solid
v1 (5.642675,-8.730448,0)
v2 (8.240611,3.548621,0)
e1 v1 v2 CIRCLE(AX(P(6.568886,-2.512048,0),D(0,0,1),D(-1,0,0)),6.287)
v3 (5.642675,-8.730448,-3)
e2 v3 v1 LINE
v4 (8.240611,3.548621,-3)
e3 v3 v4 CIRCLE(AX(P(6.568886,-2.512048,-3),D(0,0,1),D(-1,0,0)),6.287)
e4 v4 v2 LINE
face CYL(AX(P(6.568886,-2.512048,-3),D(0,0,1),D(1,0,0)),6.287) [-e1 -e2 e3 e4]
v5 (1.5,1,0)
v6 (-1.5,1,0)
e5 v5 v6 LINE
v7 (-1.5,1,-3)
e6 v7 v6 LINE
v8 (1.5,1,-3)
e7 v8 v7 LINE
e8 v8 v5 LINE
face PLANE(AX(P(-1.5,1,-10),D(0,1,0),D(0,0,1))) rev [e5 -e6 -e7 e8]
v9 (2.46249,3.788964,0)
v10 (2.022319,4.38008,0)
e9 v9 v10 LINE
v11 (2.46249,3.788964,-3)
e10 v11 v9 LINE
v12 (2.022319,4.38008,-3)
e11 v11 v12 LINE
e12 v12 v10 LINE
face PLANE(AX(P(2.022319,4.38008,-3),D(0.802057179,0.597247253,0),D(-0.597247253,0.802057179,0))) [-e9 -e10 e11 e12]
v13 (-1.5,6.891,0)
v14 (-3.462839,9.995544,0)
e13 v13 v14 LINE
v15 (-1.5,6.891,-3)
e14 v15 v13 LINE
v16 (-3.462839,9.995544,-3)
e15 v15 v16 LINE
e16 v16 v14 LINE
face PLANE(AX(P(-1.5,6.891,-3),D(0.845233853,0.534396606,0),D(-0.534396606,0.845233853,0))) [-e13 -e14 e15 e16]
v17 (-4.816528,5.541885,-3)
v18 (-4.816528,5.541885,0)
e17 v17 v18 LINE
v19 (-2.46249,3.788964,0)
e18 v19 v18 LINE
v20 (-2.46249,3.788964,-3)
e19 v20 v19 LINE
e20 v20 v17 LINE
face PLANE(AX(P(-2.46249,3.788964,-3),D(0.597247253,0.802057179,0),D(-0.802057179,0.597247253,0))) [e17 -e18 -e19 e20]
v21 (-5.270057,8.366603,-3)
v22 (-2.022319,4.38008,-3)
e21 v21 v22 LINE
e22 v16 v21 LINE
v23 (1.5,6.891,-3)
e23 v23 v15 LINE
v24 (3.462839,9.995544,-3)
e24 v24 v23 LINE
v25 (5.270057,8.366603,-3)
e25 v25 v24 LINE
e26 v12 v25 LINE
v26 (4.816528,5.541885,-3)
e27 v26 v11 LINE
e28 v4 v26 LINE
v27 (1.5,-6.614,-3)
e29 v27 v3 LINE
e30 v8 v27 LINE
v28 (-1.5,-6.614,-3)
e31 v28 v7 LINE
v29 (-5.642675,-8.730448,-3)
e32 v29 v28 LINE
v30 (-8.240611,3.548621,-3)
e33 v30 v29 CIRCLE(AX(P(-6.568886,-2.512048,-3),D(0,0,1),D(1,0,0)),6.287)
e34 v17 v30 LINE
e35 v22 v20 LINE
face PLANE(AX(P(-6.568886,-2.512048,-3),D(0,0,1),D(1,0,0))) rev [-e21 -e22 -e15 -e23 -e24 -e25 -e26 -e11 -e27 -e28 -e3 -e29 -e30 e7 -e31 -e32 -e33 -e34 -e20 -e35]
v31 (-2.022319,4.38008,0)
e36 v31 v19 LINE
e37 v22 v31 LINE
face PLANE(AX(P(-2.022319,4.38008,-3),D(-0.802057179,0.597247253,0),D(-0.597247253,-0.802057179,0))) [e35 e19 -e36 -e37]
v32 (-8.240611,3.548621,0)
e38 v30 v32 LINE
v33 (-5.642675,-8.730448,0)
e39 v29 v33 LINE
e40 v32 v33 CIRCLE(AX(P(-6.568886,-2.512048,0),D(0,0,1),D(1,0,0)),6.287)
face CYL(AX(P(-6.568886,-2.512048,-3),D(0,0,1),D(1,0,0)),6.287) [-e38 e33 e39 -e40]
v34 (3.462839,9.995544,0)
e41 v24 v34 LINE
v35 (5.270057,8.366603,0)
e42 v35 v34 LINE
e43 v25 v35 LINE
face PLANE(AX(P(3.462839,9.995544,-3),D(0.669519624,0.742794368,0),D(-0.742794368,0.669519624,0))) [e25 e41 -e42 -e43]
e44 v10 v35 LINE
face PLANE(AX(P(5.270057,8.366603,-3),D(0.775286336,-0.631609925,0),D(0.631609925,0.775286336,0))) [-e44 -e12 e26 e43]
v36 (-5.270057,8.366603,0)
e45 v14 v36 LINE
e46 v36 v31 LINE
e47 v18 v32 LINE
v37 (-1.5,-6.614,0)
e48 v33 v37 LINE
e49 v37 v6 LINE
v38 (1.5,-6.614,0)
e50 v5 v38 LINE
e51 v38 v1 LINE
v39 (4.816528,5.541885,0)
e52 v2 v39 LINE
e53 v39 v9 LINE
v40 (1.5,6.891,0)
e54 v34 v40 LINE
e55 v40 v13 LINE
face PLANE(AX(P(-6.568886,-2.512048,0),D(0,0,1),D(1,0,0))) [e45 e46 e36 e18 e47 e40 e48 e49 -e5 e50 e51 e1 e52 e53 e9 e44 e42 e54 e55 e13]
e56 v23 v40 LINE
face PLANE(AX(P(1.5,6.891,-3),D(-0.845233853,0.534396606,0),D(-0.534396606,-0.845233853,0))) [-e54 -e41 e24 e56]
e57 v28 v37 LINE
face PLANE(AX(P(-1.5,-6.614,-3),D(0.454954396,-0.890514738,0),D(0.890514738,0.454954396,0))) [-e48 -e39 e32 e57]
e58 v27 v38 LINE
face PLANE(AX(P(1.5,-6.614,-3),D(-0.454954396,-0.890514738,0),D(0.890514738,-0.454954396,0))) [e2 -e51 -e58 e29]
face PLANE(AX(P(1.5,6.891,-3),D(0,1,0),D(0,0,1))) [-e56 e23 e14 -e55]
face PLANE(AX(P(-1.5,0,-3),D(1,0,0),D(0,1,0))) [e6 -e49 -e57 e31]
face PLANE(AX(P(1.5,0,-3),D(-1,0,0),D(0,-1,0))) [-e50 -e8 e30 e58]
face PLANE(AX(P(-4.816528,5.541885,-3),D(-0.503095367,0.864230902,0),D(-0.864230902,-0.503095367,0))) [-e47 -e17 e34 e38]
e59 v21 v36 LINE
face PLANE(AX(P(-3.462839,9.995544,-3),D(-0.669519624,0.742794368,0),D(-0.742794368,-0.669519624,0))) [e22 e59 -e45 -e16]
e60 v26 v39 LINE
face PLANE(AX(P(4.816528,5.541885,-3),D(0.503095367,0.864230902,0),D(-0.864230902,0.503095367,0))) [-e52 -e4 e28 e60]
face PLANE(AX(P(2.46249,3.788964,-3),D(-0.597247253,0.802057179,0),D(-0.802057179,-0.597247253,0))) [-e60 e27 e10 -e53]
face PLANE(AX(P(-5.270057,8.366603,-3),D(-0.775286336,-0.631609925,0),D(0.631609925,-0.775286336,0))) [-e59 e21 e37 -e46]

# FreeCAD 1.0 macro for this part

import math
import FreeCAD as App
import Part
import Sketcher

V = App.Vector
Q = App.Units.Quantity


def add_polygon(sketch, points):
    """Adds a closed chain of lines whose ends are joined by coincident constraints."""
    first, n = sketch.GeometryCount, len(points)
    for a, b in zip(points, points[1:] + points[:1]):
        sketch.addGeometry(Part.LineSegment(App.Vector(*a, 0), App.Vector(*b, 0)), False)
    for i in range(n):
        sketch.addConstraint(Sketcher.Constraint("Coincident", first + i, 2, first + (i + 1) % n, 1))

doc = App.newDocument("Part")
params = doc.addObject("Spreadsheet::Sheet", "Params")
for row, (alias, value) in enumerate([
    ("sketch1_width", "3 mm"),
    ("pad1_length", "3 mm"),
    ("sketch2_width", "3 mm"),
    ("sketch2_height", "1 mm"),
    ("pocket1_length", "10 mm"),
], start=1):
    params.set(f"A{row}", alias)
    params.set(f"B{row}", "=" + value)
    params.setAlias(f"B{row}", alias)

body = doc.addObject("PartDesign::Body", "Body")

# Sketch on XY plane
sketch1 = body.newObject("Sketcher::SketchObject", "Sketch")
sketch1.AttachmentSupport = (doc.getObject("XY_Plane"), [""])
sketch1.MapMode = "FlatFace"
sketch1.addGeometry(Part.LineSegment(V(1.5, 6.9, 0), V(-1.5, 6.9, 0)), False)
sketch1.addGeometry(Part.LineSegment(V(-1.5, 6.9, 0), V(-3.5, 10, 0)), False)
sketch1.addGeometry(Part.LineSegment(V(-3.5, 10, 0), V(-5.3, 8.4, 0)), False)
sketch1.addGeometry(Part.LineSegment(V(-5.3, 8.4, 0), V(-2, 4.4, 0)), False)
sketch1.addGeometry(Part.LineSegment(V(-2, 4.4, 0), V(-2.5, 3.8, 0)), False)
sketch1.addGeometry(Part.LineSegment(V(-2.5, 3.8, 0), V(-4.8, 5.5, 0)), False)
sketch1.addGeometry(Part.LineSegment(V(-4.8, 5.5, 0), V(-8.2, 3.5, 0)), False)
sketch1.addGeometry(Part.ArcOfCircle(Part.Circle(V(-6.6, -2.5, 0), V(0, 0, 1), 6.3), math.radians(105), math.radians(278)), False)
sketch1.addGeometry(Part.LineSegment(V(-5.6, -8.7, 0), V(-1.5, -6.6, 0)), False)
sketch1.addGeometry(Part.LineSegment(V(-1.5, -6.6, 0), V(-1.5, 0, 0)), False)
sketch1.addGeometry(Part.LineSegment(V(-1.5, 0, 0), V(1.5, 0, 0)), False)
sketch1.addGeometry(Part.LineSegment(V(1.5, 0, 0), V(1.5, -6.6, 0)), False)
sketch1.addGeometry(Part.LineSegment(V(1.5, -6.6, 0), V(5.6, -8.7, 0)), False)
sketch1.addGeometry(Part.ArcOfCircle(Part.Circle(V(6.6, -2.5, 0), V(0, 0, 1), 6.3), math.radians(-98), math.radians(75)), False)
sketch1.addGeometry(Part.LineSegment(V(8.2, 3.5, 0), V(4.8, 5.5, 0)), False)
sketch1.addGeometry(Part.LineSegment(V(4.8, 5.5, 0), V(2.5, 3.8, 0)), False)
sketch1.addGeometry(Part.LineSegment(V(2.5, 3.8, 0), V(2, 4.4, 0)), False)
sketch1.addGeometry(Part.LineSegment(V(2, 4.4, 0), V(5.3, 8.4, 0)), False)
sketch1.addGeometry(Part.LineSegment(V(5.3, 8.4, 0), V(3.5, 10, 0)), False)
sketch1.addGeometry(Part.LineSegment(V(3.5, 10, 0), V(1.5, 6.9, 0)), False)
sketch1.addConstraint(Sketcher.Constraint("Coincident", 0, 2, 1, 1))
sketch1.addConstraint(Sketcher.Constraint("Coincident", 1, 2, 2, 1))
sketch1.addConstraint(Sketcher.Constraint("Coincident", 2, 2, 3, 1))
sketch1.addConstraint(Sketcher.Constraint("Coincident", 3, 2, 4, 1))
sketch1.addConstraint(Sketcher.Constraint("Coincident", 4, 2, 5, 1))
sketch1.addConstraint(Sketcher.Constraint("Coincident", 5, 2, 6, 1))
sketch1.addConstraint(Sketcher.Constraint("Coincident", 6, 2, 7, 1))
sketch1.addConstraint(Sketcher.Constraint("Coincident", 7, 2, 8, 1))
sketch1.addConstraint(Sketcher.Constraint("Coincident", 8, 2, 9, 1))
sketch1.addConstraint(Sketcher.Constraint("Coincident", 9, 2, 10, 1))
sketch1.addConstraint(Sketcher.Constraint("Coincident", 10, 2, 11, 1))
sketch1.addConstraint(Sketcher.Constraint("Coincident", 11, 2, 12, 1))
sketch1.addConstraint(Sketcher.Constraint("Coincident", 12, 2, 13, 1))
sketch1.addConstraint(Sketcher.Constraint("Coincident", 13, 2, 14, 1))
sketch1.addConstraint(Sketcher.Constraint("Coincident", 14, 2, 15, 1))
sketch1.addConstraint(Sketcher.Constraint("Coincident", 15, 2, 16, 1))
sketch1.addConstraint(Sketcher.Constraint("Coincident", 16, 2, 17, 1))
sketch1.addConstraint(Sketcher.Constraint("Coincident", 17, 2, 18, 1))
sketch1.addConstraint(Sketcher.Constraint("Coincident", 18, 2, 19, 1))
sketch1.addConstraint(Sketcher.Constraint("Coincident", 19, 2, 0, 1))
sketch1.addConstraint(Sketcher.Constraint("Horizontal", 0))
sketch1.addConstraint(Sketcher.Constraint("Vertical", 9))
sketch1.addConstraint(Sketcher.Constraint("Horizontal", 10))
sketch1.addConstraint(Sketcher.Constraint("Vertical", 11))
sketch1.addConstraint(Sketcher.Constraint("Equal", 7, 13))
sketch1.addConstraint(Sketcher.Constraint("Symmetric", 9, 2, 10, 2, -1, 1))
sketch1.addConstraint(Sketcher.Constraint("Symmetric", 7, 3, 13, 3, -2))
sketch1.addConstraint(Sketcher.Constraint("Symmetric", 5, 2, 14, 2, -2))
sketch1.addConstraint(Sketcher.Constraint("Symmetric", 4, 2, 15, 2, -2))
sketch1.addConstraint(Sketcher.Constraint("Symmetric", 3, 2, 16, 2, -2))
sketch1.addConstraint(Sketcher.Constraint("Symmetric", 2, 2, 17, 2, -2))
sketch1.addConstraint(Sketcher.Constraint("Symmetric", 1, 2, 18, 2, -2))
sketch1.addConstraint(Sketcher.Constraint("Perpendicular", 4, 5))
sketch1.addConstraint(Sketcher.Constraint("Horizontal", 8, 2, 11, 2))
sketch1.addConstraint(Sketcher.Constraint("Horizontal", 7, 2, 12, 2))
sketch1.addConstraint(Sketcher.Constraint("Horizontal", 6, 2, 13, 2))
sketch1.addConstraint(Sketcher.Constraint("Vertical", 0, 2, 8, 2))
sketch1.addConstraint(Sketcher.Constraint("Vertical", 11, 2, 19, 2))
sketch1.addConstraint(Sketcher.Constraint("DistanceX", 0, 2, 0, 1, Q("3 mm")))
sketch1.addConstraint(Sketcher.Constraint("Radius", 7, Q("6.287 mm")))
sketch1.addConstraint(Sketcher.Constraint("Angle", 2, Q("-137.97 deg")))
sketch1.addConstraint(Sketcher.Constraint("DistanceY", 9, 1, 9, 2, Q("6.614 mm")))
sketch1.addConstraint(Sketcher.Constraint("Distance", 1, Q("3.673 mm")))
sketch1.addConstraint(Sketcher.Constraint("Distance", 2, Q("2.433 mm")))
sketch1.addConstraint(Sketcher.Constraint("Distance", 3, Q("5.142 mm")))
sketch1.addConstraint(Sketcher.Constraint("Distance", 4, Q("0.737 mm")))
sketch1.addConstraint(Sketcher.Constraint("Distance", 5, Q("2.935 mm")))
sketch1.addConstraint(Sketcher.Constraint("Distance", 6, Q("3.962 mm")))
sketch1.addConstraint(Sketcher.Constraint("Distance", 8, Q("4.652 mm")))
sketch1.addConstraint(Sketcher.Constraint("DistanceY", -1, 1, 0, 2, Q("6.891 mm")))
sketch1.addConstraint(Sketcher.Constraint("DistanceY", 7, 2, 7, 3, Q("6.2184 mm")))
sketch1.addConstraint(Sketcher.Constraint("DistanceX", 1, 2, -1, 1, Q("3.462839 mm")))
sketch1.addConstraint(Sketcher.Constraint("DistanceX", 3, 2, -1, 1, Q("2.022319 mm")))
sketch1.addConstraint(Sketcher.Constraint("DistanceX", 4, 2, -1, 1, Q("2.46249 mm")))
sketch1.addConstraint(Sketcher.Constraint("DistanceX", 6, 2, -1, 1, Q("8.240611 mm")))
sketch1.setExpression("Constraints[38]", "Params.sketch1_width")
pad1 = body.newObject("PartDesign::Pad", "Pad")
pad1.Profile = sketch1
pad1.setExpression("Length", "Params.pad1_length")
pad1.Reversed = True

# Sketch on XY plane
sketch2 = body.newObject("Sketcher::SketchObject", "Sketch001")
sketch2.AttachmentSupport = (doc.getObject("XY_Plane"), [""])
sketch2.MapMode = "FlatFace"
add_polygon(sketch2, [(-1.5, 1), (-1.5, 0), (1.5, 0), (1.5, 1)])  # lines 0-3
sketch2.addConstraint(Sketcher.Constraint("Vertical", 0))
sketch2.addConstraint(Sketcher.Constraint("Horizontal", 1))
sketch2.addConstraint(Sketcher.Constraint("Vertical", 2))
sketch2.addConstraint(Sketcher.Constraint("Horizontal", 3))
sketch2.addConstraint(Sketcher.Constraint("Symmetric", 0, 2, 1, 2, -1, 1))
sketch2.addConstraint(Sketcher.Constraint("DistanceX", 1, 1, 1, 2, Q("3 mm")))
sketch2.addConstraint(Sketcher.Constraint("DistanceY", 0, 2, 0, 1, Q("1 mm")))
sketch2.setExpression("Constraints[9]", "Params.sketch2_width")
sketch2.setExpression("Constraints[10]", "Params.sketch2_height")
pocket1 = body.newObject("PartDesign::Pocket", "Pocket")
pocket1.Profile = sketch2
pocket1.setExpression("Length", "Params.pocket1_length")

doc.recompute()
